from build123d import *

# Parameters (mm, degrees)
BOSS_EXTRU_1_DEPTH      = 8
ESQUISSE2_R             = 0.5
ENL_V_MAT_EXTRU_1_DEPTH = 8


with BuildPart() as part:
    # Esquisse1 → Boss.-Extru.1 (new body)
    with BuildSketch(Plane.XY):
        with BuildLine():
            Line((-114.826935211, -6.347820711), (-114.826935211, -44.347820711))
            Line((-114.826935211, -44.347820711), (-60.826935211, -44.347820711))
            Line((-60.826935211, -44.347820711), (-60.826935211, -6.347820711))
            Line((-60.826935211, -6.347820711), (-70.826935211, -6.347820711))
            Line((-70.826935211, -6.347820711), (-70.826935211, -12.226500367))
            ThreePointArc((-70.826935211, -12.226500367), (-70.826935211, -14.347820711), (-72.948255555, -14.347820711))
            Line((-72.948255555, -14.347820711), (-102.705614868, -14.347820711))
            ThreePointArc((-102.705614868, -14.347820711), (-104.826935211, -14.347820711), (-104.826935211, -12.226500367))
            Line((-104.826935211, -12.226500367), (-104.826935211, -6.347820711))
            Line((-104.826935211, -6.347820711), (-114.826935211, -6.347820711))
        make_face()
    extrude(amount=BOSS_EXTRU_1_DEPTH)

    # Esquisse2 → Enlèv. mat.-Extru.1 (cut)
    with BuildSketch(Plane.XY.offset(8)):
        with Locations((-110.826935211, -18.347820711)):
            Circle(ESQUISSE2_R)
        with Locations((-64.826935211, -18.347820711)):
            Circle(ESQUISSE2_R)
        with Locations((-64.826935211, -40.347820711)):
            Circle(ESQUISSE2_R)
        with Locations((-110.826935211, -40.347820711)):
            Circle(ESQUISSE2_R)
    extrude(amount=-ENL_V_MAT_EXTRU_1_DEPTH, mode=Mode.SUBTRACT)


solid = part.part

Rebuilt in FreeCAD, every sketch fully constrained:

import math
import FreeCAD as App
import Part
import Sketcher
from FreeCAD import Vector

doc = App.newDocument("Part")
params = doc.addObject("Spreadsheet::Sheet", "Params")
for row, (alias, value) in enumerate([
    ("sketch1_radius", "1.5 mm"),
    ("sketch1_width", "54 mm"),
    ("sketch1_width2", "10 mm"),
    ("sketch1_height", "38 mm"),
    ("pad1_length", "8 mm"),
    ("sketch2_diameter", "1 mm"),
    ("pocket1_length", "8 mm"),
], start=1):
    params.set(f"A{row}", alias)
    params.set(f"B{row}", "=" + value)
    params.setAlias(f"B{row}", alias)

body = doc.addObject("PartDesign::Body", "Body")

# Sketch on XY plane
sketch1 = body.newObject("Sketcher::SketchObject", "Sketch")
sketch1.AttachmentSupport = (doc.getObject("XY_Plane"), [""])
sketch1.MapMode = "FlatFace"
sketch1.addGeometry(Part.LineSegment(Vector(-114.8, -6.3, 0), Vector(-114.8, -44.3, 0)), False)
sketch1.addGeometry(Part.LineSegment(Vector(-114.8, -44.3, 0), Vector(-60.8, -44.3, 0)), False)
sketch1.addGeometry(Part.LineSegment(Vector(-60.8, -44.3, 0), Vector(-60.8, -6.3, 0)), False)
sketch1.addGeometry(Part.LineSegment(Vector(-60.8, -6.3, 0), Vector(-70.8, -6.3, 0)), False)
sketch1.addGeometry(Part.LineSegment(Vector(-70.8, -6.3, 0), Vector(-70.8, -12.2, 0)), False)
sketch1.addGeometry(Part.ArcOfCircle(Part.Circle(Vector(-71.9, -13.3, 0), Vector(0, 0, 1), 1.5), math.radians(-135), math.radians(45)), False)
sketch1.addGeometry(Part.LineSegment(Vector(-72.9, -14.3, 0), Vector(-102.7, -14.3, 0)), False)
sketch1.addGeometry(Part.ArcOfCircle(Part.Circle(Vector(-103.8, -13.3, 0), Vector(0, 0, 1), 1.5), math.radians(135), math.radians(315)), False)
sketch1.addGeometry(Part.LineSegment(Vector(-104.8, -12.2, 0), Vector(-104.8, -6.3, 0)), False)
sketch1.addGeometry(Part.LineSegment(Vector(-104.8, -6.3, 0), Vector(-114.8, -6.3, 0)), False)
sketch1.addConstraint(Sketcher.Constraint("Coincident", 0, 2, 1, 1))
sketch1.addConstraint(Sketcher.Constraint("Coincident", 1, 2, 2, 1))
sketch1.addConstraint(Sketcher.Constraint("Coincident", 2, 2, 3, 1))
sketch1.addConstraint(Sketcher.Constraint("Coincident", 3, 2, 4, 1))
sketch1.addConstraint(Sketcher.Constraint("Coincident", 4, 2, 5, 2))
sketch1.addConstraint(Sketcher.Constraint("Coincident", 5, 1, 6, 1))
sketch1.addConstraint(Sketcher.Constraint("Coincident", 6, 2, 7, 2))
sketch1.addConstraint(Sketcher.Constraint("Coincident", 7, 1, 8, 1))
sketch1.addConstraint(Sketcher.Constraint("Coincident", 8, 2, 9, 1))
sketch1.addConstraint(Sketcher.Constraint("Coincident", 9, 2, 0, 1))
sketch1.addConstraint(Sketcher.Constraint("Vertical", 0))
sketch1.addConstraint(Sketcher.Constraint("Horizontal", 1))
sketch1.addConstraint(Sketcher.Constraint("Vertical", 2))
sketch1.addConstraint(Sketcher.Constraint("Horizontal", 3))
sketch1.addConstraint(Sketcher.Constraint("Vertical", 4))
sketch1.addConstraint(Sketcher.Constraint("Horizontal", 6))
sketch1.addConstraint(Sketcher.Constraint("Vertical", 8))
sketch1.addConstraint(Sketcher.Constraint("Horizontal", 9))
sketch1.addConstraint(Sketcher.Constraint("Equal", 5, 7))
sketch1.addConstraint(Sketcher.Constraint("Horizontal", 5, 3, 7, 3))
sketch1.addConstraint(Sketcher.Constraint("Horizontal", 4, 2, 7, 1))
sketch1.addConstraint(Sketcher.Constraint("Horizontal", 3, 2, 8, 2))
sketch1.addConstraint(Sketcher.Constraint("Equal", 3, 9))
sketch1.addConstraint(Sketcher.Constraint("Radius", 5, 1.5))
sketch1.addConstraint(Sketcher.Constraint("DistanceX", 1, 1, 1, 2, 54.0))
sketch1.addConstraint(Sketcher.Constraint("DistanceX", 3, 2, 3, 1, 10.0))
sketch1.addConstraint(Sketcher.Constraint("DistanceY", 0, 2, 0, 1, 38.0))
sketch1.addConstraint(Sketcher.Constraint("DistanceY", 5, 1, 3, 2, 8.0))
sketch1.addConstraint(Sketcher.Constraint("DistanceX", 6, 2, 6, 1, 29.757359))
sketch1.addConstraint(Sketcher.Constraint("DistanceY", 4, 2, -1, 1, 12.2265))
sketch1.addConstraint(Sketcher.Constraint("DistanceY", 5, 3, -1, 1, 13.287161))
sketch1.addConstraint(Sketcher.Constraint("DistanceX", 5, 3, -1, 1, 71.887595))
sketch1.setExpression("Constraints[23]", "Params.sketch1_radius")
sketch1.setExpression("Constraints[24]", "Params.sketch1_width")
sketch1.setExpression("Constraints[25]", "Params.sketch1_width2")
sketch1.setExpression("Constraints[26]", "Params.sketch1_height")
pad1 = body.newObject("PartDesign::Pad", "Pad")
pad1.Profile = sketch1
pad1.setExpression("Length", "Params.pad1_length")

# Sketch on XY plane
sketch2 = body.newObject("Sketcher::SketchObject", "Sketch001")
sketch2.AttachmentSupport = (doc.getObject("XY_Plane"), [""])
sketch2.MapMode = "FlatFace"
sketch2.AttachmentOffset = App.Placement(Vector(0, 0, 8), App.Rotation())
sketch2.addGeometry(Part.Circle(Vector(-110.8, -18.3, 0), Vector(0, 0, 1), 0.5), False)
sketch2.addGeometry(Part.Circle(Vector(-64.8, -18.3, 0), Vector(0, 0, 1), 0.5), False)
sketch2.addGeometry(Part.Circle(Vector(-64.8, -40.3, 0), Vector(0, 0, 1), 0.5), False)
sketch2.addGeometry(Part.Circle(Vector(-110.8, -40.3, 0), Vector(0, 0, 1), 0.5), False)
sketch2.addConstraint(Sketcher.Constraint("Equal", 0, 1))
sketch2.addConstraint(Sketcher.Constraint("Equal", 1, 2))
sketch2.addConstraint(Sketcher.Constraint("Equal", 2, 3))
sketch2.addConstraint(Sketcher.Constraint("Horizontal", 0, 3, 1, 3))
sketch2.addConstraint(Sketcher.Constraint("Horizontal", 2, 3, 3, 3))
sketch2.addConstraint(Sketcher.Constraint("Vertical", 1, 3, 2, 3))
sketch2.addConstraint(Sketcher.Constraint("Vertical", 0, 3, 3, 3))
sketch2.addConstraint(Sketcher.Constraint("Diameter", 0, 1.0))
sketch2.addConstraint(Sketcher.Constraint("DistanceX", 0, 3, 1, 3, 46.0))
sketch2.addConstraint(Sketcher.Constraint("DistanceY", 2, 3, 1, 3, 22.0))
sketch2.addConstraint(Sketcher.Constraint("DistanceY", 0, 3, -1, 1, 18.347821))
sketch2.addConstraint(Sketcher.Constraint("DistanceX", 0, 3, -1, 1, 110.826935))
sketch2.setExpression("Constraints[7]", "Params.sketch2_diameter")
pocket1 = body.newObject("PartDesign::Pocket", "Pocket")
pocket1.Profile = sketch2
pocket1.setExpression("Length", "Params.pocket1_length")

doc.recompute()
